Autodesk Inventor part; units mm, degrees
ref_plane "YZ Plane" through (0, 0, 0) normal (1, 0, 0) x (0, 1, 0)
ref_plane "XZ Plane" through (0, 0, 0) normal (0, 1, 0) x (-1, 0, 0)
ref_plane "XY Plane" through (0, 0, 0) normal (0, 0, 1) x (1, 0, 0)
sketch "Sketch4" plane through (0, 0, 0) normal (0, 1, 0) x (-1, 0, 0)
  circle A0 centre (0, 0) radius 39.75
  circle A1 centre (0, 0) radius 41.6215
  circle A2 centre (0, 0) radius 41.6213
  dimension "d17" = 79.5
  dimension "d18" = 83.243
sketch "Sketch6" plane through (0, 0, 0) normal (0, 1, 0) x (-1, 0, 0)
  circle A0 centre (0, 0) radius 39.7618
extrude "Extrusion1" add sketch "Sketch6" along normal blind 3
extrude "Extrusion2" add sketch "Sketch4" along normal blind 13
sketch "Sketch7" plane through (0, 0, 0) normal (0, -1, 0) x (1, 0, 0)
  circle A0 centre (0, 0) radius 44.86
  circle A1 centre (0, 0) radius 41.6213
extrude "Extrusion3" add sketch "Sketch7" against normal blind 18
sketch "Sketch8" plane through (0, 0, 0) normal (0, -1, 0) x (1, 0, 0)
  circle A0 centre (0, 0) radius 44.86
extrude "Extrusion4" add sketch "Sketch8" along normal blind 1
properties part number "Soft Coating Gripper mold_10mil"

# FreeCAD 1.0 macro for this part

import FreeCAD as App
import Part
import Sketcher

doc = App.newDocument("Part")
body = doc.addObject("PartDesign::Body", "Body")

sketch1 = body.newObject("Sketcher::SketchObject", "Sketch")
sketch1.AttachmentSupport = (doc.getObject("XZ_Plane"), [""])
sketch1.MapMode = "FlatFace"
sketch1.addGeometry(Part.Circle(App.Vector(0, 0, 0), App.Vector(0, 0, 1), 40), False)
sketch1.addConstraint(Sketcher.Constraint("Coincident", 0, 3, -1, 1))
sketch1.addConstraint(Sketcher.Constraint("Diameter", 0, 79.5236))
pad1 = body.newObject("PartDesign::Pad", "Pad")
pad1.Profile = sketch1
pad1.Length = 3
pad1.Reversed = True

sketch2 = body.newObject("Sketcher::SketchObject", "Sketch001")
sketch2.AttachmentSupport = (doc.getObject("XZ_Plane"), [""])
sketch2.MapMode = "FlatFace"
sketch2.addGeometry(Part.Circle(App.Vector(0, 0, 0), App.Vector(0, 0, 1), 42), False)
sketch2.addGeometry(Part.Circle(App.Vector(0, 0, 0), App.Vector(0, 0, 1), 40), False)
sketch2.addConstraint(Sketcher.Constraint("Coincident", 0, 3, -1, 1))
sketch2.addConstraint(Sketcher.Constraint("Coincident", 1, 3, -1, 1))
sketch2.addConstraint(Sketcher.Constraint("Diameter", 1, 79.5))
sketch2.addConstraint(Sketcher.Constraint("Diameter", 0, 83.243))
pad2 = body.newObject("PartDesign::Pad", "Pad001")
pad2.Profile = sketch2
pad2.Length = 13
pad2.Reversed = True

sketch3 = body.newObject("Sketcher::SketchObject", "Sketch002")
sketch3.AttachmentSupport = (doc.getObject("XZ_Plane"), [""])
sketch3.MapMode = "FlatFace"
sketch3.addGeometry(Part.Circle(App.Vector(0, 0, 0), App.Vector(0, 0, 1), 45), False)
sketch3.addGeometry(Part.Circle(App.Vector(0, 0, 0), App.Vector(0, 0, 1), 42), False)
sketch3.addConstraint(Sketcher.Constraint("Coincident", 0, 3, -1, 1))
sketch3.addConstraint(Sketcher.Constraint("Coincident", 1, 3, -1, 1))
sketch3.addConstraint(Sketcher.Constraint("Diameter", 0, 89.72))
sketch3.addConstraint(Sketcher.Constraint("Diameter", 1, 83.2426))
pad3 = body.newObject("PartDesign::Pad", "Pad002")
pad3.Profile = sketch3
pad3.Length = 18
pad3.Reversed = True

sketch4 = body.newObject("Sketcher::SketchObject", "Sketch003")
sketch4.AttachmentSupport = (doc.getObject("XZ_Plane"), [""])
sketch4.MapMode = "FlatFace"
sketch4.addGeometry(Part.Circle(App.Vector(0, 0, 0), App.Vector(0, 0, 1), 45), False)
sketch4.addConstraint(Sketcher.Constraint("Coincident", 0, 3, -1, 1))
sketch4.addConstraint(Sketcher.Constraint("Diameter", 0, 89.72))
pad4 = body.newObject("PartDesign::Pad", "Pad003")
pad4.Profile = sketch4
pad4.Length = 1

doc.recompute()
